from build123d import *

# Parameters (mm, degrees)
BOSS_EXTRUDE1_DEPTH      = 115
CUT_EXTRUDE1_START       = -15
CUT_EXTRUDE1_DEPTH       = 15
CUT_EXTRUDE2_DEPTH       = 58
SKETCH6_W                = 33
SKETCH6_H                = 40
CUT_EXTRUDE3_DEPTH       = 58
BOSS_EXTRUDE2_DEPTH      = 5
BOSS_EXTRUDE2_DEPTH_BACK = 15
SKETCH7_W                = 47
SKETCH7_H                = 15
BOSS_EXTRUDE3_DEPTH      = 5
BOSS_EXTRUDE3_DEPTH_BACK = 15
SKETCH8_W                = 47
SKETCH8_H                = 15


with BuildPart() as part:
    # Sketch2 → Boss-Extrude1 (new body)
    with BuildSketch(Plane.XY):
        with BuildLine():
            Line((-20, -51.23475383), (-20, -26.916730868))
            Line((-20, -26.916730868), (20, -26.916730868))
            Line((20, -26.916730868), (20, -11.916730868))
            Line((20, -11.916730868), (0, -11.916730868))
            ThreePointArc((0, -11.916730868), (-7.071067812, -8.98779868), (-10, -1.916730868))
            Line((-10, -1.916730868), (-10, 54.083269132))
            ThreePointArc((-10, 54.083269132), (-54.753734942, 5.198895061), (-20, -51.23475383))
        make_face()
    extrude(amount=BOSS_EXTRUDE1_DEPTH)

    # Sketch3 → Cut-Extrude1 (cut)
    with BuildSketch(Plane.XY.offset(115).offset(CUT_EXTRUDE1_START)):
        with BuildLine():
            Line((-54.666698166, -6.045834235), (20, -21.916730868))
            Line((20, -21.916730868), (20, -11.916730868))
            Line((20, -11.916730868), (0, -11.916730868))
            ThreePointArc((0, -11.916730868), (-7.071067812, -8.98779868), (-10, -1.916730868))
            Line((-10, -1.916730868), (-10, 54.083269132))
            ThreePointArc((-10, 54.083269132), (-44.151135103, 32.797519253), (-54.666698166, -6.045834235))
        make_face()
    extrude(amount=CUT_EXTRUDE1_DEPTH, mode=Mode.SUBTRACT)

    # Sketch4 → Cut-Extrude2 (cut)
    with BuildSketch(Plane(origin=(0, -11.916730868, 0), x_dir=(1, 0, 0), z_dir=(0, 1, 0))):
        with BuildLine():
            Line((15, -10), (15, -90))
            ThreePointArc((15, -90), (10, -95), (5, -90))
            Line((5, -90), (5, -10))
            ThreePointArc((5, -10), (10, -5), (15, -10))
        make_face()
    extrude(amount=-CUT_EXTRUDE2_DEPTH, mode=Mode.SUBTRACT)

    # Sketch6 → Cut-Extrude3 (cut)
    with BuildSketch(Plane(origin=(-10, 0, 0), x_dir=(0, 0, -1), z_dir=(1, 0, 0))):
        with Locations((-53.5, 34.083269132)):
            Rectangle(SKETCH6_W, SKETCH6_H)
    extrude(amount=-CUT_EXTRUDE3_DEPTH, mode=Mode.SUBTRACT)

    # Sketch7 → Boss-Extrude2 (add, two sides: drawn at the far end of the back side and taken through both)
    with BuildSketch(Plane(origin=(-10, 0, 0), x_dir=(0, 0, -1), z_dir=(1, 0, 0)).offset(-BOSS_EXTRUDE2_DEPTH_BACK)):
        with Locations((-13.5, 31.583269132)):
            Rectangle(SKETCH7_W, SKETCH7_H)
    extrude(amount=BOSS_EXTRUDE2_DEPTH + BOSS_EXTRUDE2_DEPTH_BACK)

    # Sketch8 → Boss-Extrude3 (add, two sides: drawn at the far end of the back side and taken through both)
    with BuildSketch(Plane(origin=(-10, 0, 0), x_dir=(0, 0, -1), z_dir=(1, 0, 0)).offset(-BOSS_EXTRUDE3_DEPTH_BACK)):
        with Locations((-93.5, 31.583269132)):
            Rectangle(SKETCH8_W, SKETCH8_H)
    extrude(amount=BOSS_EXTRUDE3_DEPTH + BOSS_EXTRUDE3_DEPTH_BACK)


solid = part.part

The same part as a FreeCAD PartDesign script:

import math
import FreeCAD as App
import Part
import Sketcher
Q = App.Units.Quantity

doc = App.newDocument("Part")
body = doc.addObject("PartDesign::Body", "Body")

# Sketch on XY plane
sketch1 = body.newObject("Sketcher::SketchObject", "Sketch")
sketch1.AttachmentSupport = (doc.getObject("XY_Plane"), [""])
sketch1.MapMode = "FlatFace"
sketch1.addGeometry(Part.LineSegment(App.Vector(-20, -51, 0), App.Vector(-20, -27, 0)), False)
sketch1.addGeometry(Part.LineSegment(App.Vector(-20, -27, 0), App.Vector(20, -27, 0)), False)
sketch1.addGeometry(Part.LineSegment(App.Vector(20, -27, 0), App.Vector(20, -12, 0)), False)
sketch1.addGeometry(Part.LineSegment(App.Vector(20, -12, 0), App.Vector(0, -12, 0)), False)
sketch1.addGeometry(Part.ArcOfCircle(Part.Circle(App.Vector(0, -2, 0), App.Vector(0, 0, 1), 10), math.radians(180), math.radians(270)), False)
sketch1.addGeometry(Part.LineSegment(App.Vector(-10, -2, 0), App.Vector(-10, 54, 0)), False)
sketch1.addGeometry(Part.ArcOfCircle(Part.Circle(App.Vector(0, 0, 0), App.Vector(0, 0, 1), 55), math.radians(100), math.radians(249)), False)
sketch1.addConstraint(Sketcher.Constraint("Coincident", 0, 2, 1, 1))
sketch1.addConstraint(Sketcher.Constraint("Coincident", 1, 2, 2, 1))
sketch1.addConstraint(Sketcher.Constraint("Coincident", 2, 2, 3, 1))
sketch1.addConstraint(Sketcher.Constraint("Tangent", 3, 2, 4, 2))
sketch1.addConstraint(Sketcher.Constraint("Tangent", 4, 1, 5, 1))
sketch1.addConstraint(Sketcher.Constraint("Coincident", 5, 2, 6, 1))
sketch1.addConstraint(Sketcher.Constraint("Coincident", 6, 2, 0, 1))
sketch1.addConstraint(Sketcher.Constraint("Vertical", 0))
sketch1.addConstraint(Sketcher.Constraint("Horizontal", 1))
sketch1.addConstraint(Sketcher.Constraint("Vertical", 2))
sketch1.addConstraint(Sketcher.Constraint("Horizontal", 3))
sketch1.addConstraint(Sketcher.Constraint("Vertical", 5))
sketch1.addConstraint(Sketcher.Constraint("Coincident", 6, 3, -1, 1))
sketch1.addConstraint(Sketcher.Constraint("PointOnObject", 4, 3, -2))
sketch1.addConstraint(Sketcher.Constraint("Radius", 4, 10.0))
sketch1.addConstraint(Sketcher.Constraint("Radius", 6, 55.0))
sketch1.addConstraint(Sketcher.Constraint("DistanceX", 1, 1, 1, 2, 40.0))
sketch1.addConstraint(Sketcher.Constraint("DistanceX", 3, 2, 3, 1, 20.0))
sketch1.addConstraint(Sketcher.Constraint("DistanceY", 2, 1, 2, 2, 15.0))
sketch1.addConstraint(Sketcher.Constraint("DistanceY", 5, 1, 5, 2, 56.0))
pad1 = body.newObject("PartDesign::Pad", "Pad")
pad1.Profile = sketch1
pad1.Length = 115

# Sketch on XY plane
sketch2 = body.newObject("Sketcher::SketchObject", "Sketch001")
sketch2.AttachmentSupport = (doc.getObject("XY_Plane"), [""])
sketch2.MapMode = "FlatFace"
sketch2.AttachmentOffset = App.Placement(App.Vector(0, 0, 100), App.Rotation())
sketch2.addGeometry(Part.LineSegment(App.Vector(-55, -6, 0), App.Vector(20, -22, 0)), False)
sketch2.addGeometry(Part.LineSegment(App.Vector(20, -22, 0), App.Vector(20, -12, 0)), False)
sketch2.addGeometry(Part.LineSegment(App.Vector(20, -12, 0), App.Vector(0, -12, 0)), False)
sketch2.addGeometry(Part.ArcOfCircle(Part.Circle(App.Vector(0, -2, 0), App.Vector(0, 0, 1), 10), math.radians(180), math.radians(270)), False)
sketch2.addGeometry(Part.LineSegment(App.Vector(-10, -2, 0), App.Vector(-10, 54, 0)), False)
sketch2.addGeometry(Part.ArcOfCircle(Part.Circle(App.Vector(0, 0, 0), App.Vector(0, 0, 1), 55), math.radians(100), math.radians(186)), False)
sketch2.addConstraint(Sketcher.Constraint("Coincident", 0, 2, 1, 1))
sketch2.addConstraint(Sketcher.Constraint("Coincident", 1, 2, 2, 1))
sketch2.addConstraint(Sketcher.Constraint("Tangent", 2, 2, 3, 2))
sketch2.addConstraint(Sketcher.Constraint("Tangent", 3, 1, 4, 1))
sketch2.addConstraint(Sketcher.Constraint("Coincident", 4, 2, 5, 1))
sketch2.addConstraint(Sketcher.Constraint("Coincident", 5, 2, 0, 1))
sketch2.addConstraint(Sketcher.Constraint("Vertical", 1))
sketch2.addConstraint(Sketcher.Constraint("Horizontal", 2))
sketch2.addConstraint(Sketcher.Constraint("Vertical", 4))
sketch2.addConstraint(Sketcher.Constraint("Coincident", 5, 3, -1, 1))
sketch2.addConstraint(Sketcher.Constraint("PointOnObject", 3, 3, -2))
sketch2.addConstraint(Sketcher.Constraint("Radius", 3, 10.0))
sketch2.addConstraint(Sketcher.Constraint("Radius", 5, 55.0))
sketch2.addConstraint(Sketcher.Constraint("DistanceX", 2, 2, 2, 1, 20.0))
sketch2.addConstraint(Sketcher.Constraint("DistanceY", 1, 1, 1, 2, 10.0))
sketch2.addConstraint(Sketcher.Constraint("DistanceY", 4, 1, 4, 2, 56.0))
sketch2.addConstraint(Sketcher.Constraint("Angle", 0, Q("-12 deg")))
pocket1 = body.newObject("PartDesign::Pocket", "Pocket")
pocket1.Profile = sketch2
pocket1.Length = 15
pocket1.Reversed = True

# Sketch on XZ plane
sketch3 = body.newObject("Sketcher::SketchObject", "Sketch002")
sketch3.AttachmentSupport = (doc.getObject("XZ_Plane"), [""])
sketch3.MapMode = "FlatFace"
sketch3.AttachmentOffset = App.Placement(App.Vector(0, 0, 11.916731), App.Rotation())
sketch3.addGeometry(Part.LineSegment(App.Vector(15, 90, 0), App.Vector(15, 10, 0)), False)
sketch3.addGeometry(Part.ArcOfCircle(Part.Circle(App.Vector(10, 10, 0), App.Vector(0, 0, 1), 5), math.radians(180), math.radians(360)), False)
sketch3.addGeometry(Part.LineSegment(App.Vector(5, 10, 0), App.Vector(5, 90, 0)), False)
sketch3.addGeometry(Part.ArcOfCircle(Part.Circle(App.Vector(10, 90, 0), App.Vector(0, 0, 1), 5), math.radians(0), math.radians(180)), False)
sketch3.addConstraint(Sketcher.Constraint("Tangent", 0, 2, 1, 2))
sketch3.addConstraint(Sketcher.Constraint("Tangent", 1, 1, 2, 1))
sketch3.addConstraint(Sketcher.Constraint("Tangent", 2, 2, 3, 2))
sketch3.addConstraint(Sketcher.Constraint("Tangent", 3, 1, 0, 1))
sketch3.addConstraint(Sketcher.Constraint("Vertical", 0))
sketch3.addConstraint(Sketcher.Constraint("Vertical", 2))
sketch3.addConstraint(Sketcher.Constraint("Radius", 1, 5.0))
sketch3.addConstraint(Sketcher.Constraint("DistanceY", 0, 2, 0, 1, 80.0))
sketch3.addConstraint(Sketcher.Constraint("DistanceX", -1, 1, 1, 3, 10.0))
sketch3.addConstraint(Sketcher.Constraint("DistanceY", -1, 1, 1, 3, 10.0))
pocket2 = body.newObject("PartDesign::Pocket", "Pocket001")
pocket2.Profile = sketch3
pocket2.Length = 58
pocket2.Reversed = True

# Sketch on YZ plane
sketch4 = body.newObject("Sketcher::SketchObject", "Sketch003")
sketch4.AttachmentSupport = (doc.getObject("YZ_Plane"), [""])
sketch4.MapMode = "FlatFace"
sketch4.AttachmentOffset = App.Placement(App.Vector(0, 0, -10), App.Rotation())
sketch4.addGeometry(Part.LineSegment(App.Vector(54, 70, 0), App.Vector(14, 70, 0)), False)
sketch4.addGeometry(Part.LineSegment(App.Vector(14, 70, 0), App.Vector(14, 37, 0)), False)
sketch4.addGeometry(Part.LineSegment(App.Vector(14, 37, 0), App.Vector(54, 37, 0)), False)
sketch4.addGeometry(Part.LineSegment(App.Vector(54, 37, 0), App.Vector(54, 70, 0)), False)
sketch4.addConstraint(Sketcher.Constraint("Coincident", 0, 2, 1, 1))
sketch4.addConstraint(Sketcher.Constraint("Coincident", 1, 2, 2, 1))
sketch4.addConstraint(Sketcher.Constraint("Coincident", 2, 2, 3, 1))
sketch4.addConstraint(Sketcher.Constraint("Coincident", 3, 2, 0, 1))
sketch4.addConstraint(Sketcher.Constraint("Horizontal", 0))
sketch4.addConstraint(Sketcher.Constraint("Vertical", 1))
sketch4.addConstraint(Sketcher.Constraint("Horizontal", 2))
sketch4.addConstraint(Sketcher.Constraint("Vertical", 3))
sketch4.addConstraint(Sketcher.Constraint("DistanceX", 0, 2, 0, 1, 40.0))
sketch4.addConstraint(Sketcher.Constraint("DistanceY", 1, 2, 1, 1, 33.0))
sketch4.addConstraint(Sketcher.Constraint("DistanceY", -1, 1, 0, 2, 70.0))
sketch4.addConstraint(Sketcher.Constraint("DistanceX", -1, 1, 0, 2, 14.083269))
pocket3 = body.newObject("PartDesign::Pocket", "Pocket002")
pocket3.Profile = sketch4
pocket3.Length = 58

# Sketch on YZ plane
sketch5 = body.newObject("Sketcher::SketchObject", "Sketch004")
sketch5.AttachmentSupport = (doc.getObject("YZ_Plane"), [""])
sketch5.MapMode = "FlatFace"
sketch5.AttachmentOffset = App.Placement(App.Vector(0, 0, -10), App.Rotation())
sketch5.addGeometry(Part.LineSegment(App.Vector(39, 37, 0), App.Vector(24, 37, 0)), False)
sketch5.addGeometry(Part.LineSegment(App.Vector(24, 37, 0), App.Vector(24, -10, 0)), False)
sketch5.addGeometry(Part.LineSegment(App.Vector(24, -10, 0), App.Vector(39, -10, 0)), False)
sketch5.addGeometry(Part.LineSegment(App.Vector(39, -10, 0), App.Vector(39, 37, 0)), False)
sketch5.addConstraint(Sketcher.Constraint("Coincident", 0, 2, 1, 1))
sketch5.addConstraint(Sketcher.Constraint("Coincident", 1, 2, 2, 1))
sketch5.addConstraint(Sketcher.Constraint("Coincident", 2, 2, 3, 1))
sketch5.addConstraint(Sketcher.Constraint("Coincident", 3, 2, 0, 1))
sketch5.addConstraint(Sketcher.Constraint("Horizontal", 0))
sketch5.addConstraint(Sketcher.Constraint("Vertical", 1))
sketch5.addConstraint(Sketcher.Constraint("Horizontal", 2))
sketch5.addConstraint(Sketcher.Constraint("Vertical", 3))
sketch5.addConstraint(Sketcher.Constraint("DistanceX", 0, 2, 0, 1, 15.0))
sketch5.addConstraint(Sketcher.Constraint("DistanceY", 1, 2, 1, 1, 47.0))
sketch5.addConstraint(Sketcher.Constraint("DistanceY", -1, 1, 0, 2, 37.0))
sketch5.addConstraint(Sketcher.Constraint("DistanceX", -1, 1, 0, 2, 24.083269))
pad2 = body.newObject("PartDesign::Pad", "Pad001")
pad2.Profile = sketch5
pad2.Type = "TwoLengths"
pad2.Length = 5
pad2.Length2 = 15

# Sketch on YZ plane
sketch6 = body.newObject("Sketcher::SketchObject", "Sketch005")
sketch6.AttachmentSupport = (doc.getObject("YZ_Plane"), [""])
sketch6.MapMode = "FlatFace"
sketch6.AttachmentOffset = App.Placement(App.Vector(0, 0, -10), App.Rotation())
sketch6.addGeometry(Part.LineSegment(App.Vector(39, 117, 0), App.Vector(24, 117, 0)), False)
sketch6.addGeometry(Part.LineSegment(App.Vector(24, 117, 0), App.Vector(24, 70, 0)), False)
sketch6.addGeometry(Part.LineSegment(App.Vector(24, 70, 0), App.Vector(39, 70, 0)), False)
sketch6.addGeometry(Part.LineSegment(App.Vector(39, 70, 0), App.Vector(39, 117, 0)), False)
sketch6.addConstraint(Sketcher.Constraint("Coincident", 0, 2, 1, 1))
sketch6.addConstraint(Sketcher.Constraint("Coincident", 1, 2, 2, 1))
sketch6.addConstraint(Sketcher.Constraint("Coincident", 2, 2, 3, 1))
sketch6.addConstraint(Sketcher.Constraint("Coincident", 3, 2, 0, 1))
sketch6.addConstraint(Sketcher.Constraint("Horizontal", 0))
sketch6.addConstraint(Sketcher.Constraint("Vertical", 1))
sketch6.addConstraint(Sketcher.Constraint("Horizontal", 2))
sketch6.addConstraint(Sketcher.Constraint("Vertical", 3))
sketch6.addConstraint(Sketcher.Constraint("DistanceX", 0, 2, 0, 1, 15.0))
sketch6.addConstraint(Sketcher.Constraint("DistanceY", 1, 2, 1, 1, 47.0))
sketch6.addConstraint(Sketcher.Constraint("DistanceY", -1, 1, 0, 2, 117.0))
sketch6.addConstraint(Sketcher.Constraint("DistanceX", -1, 1, 0, 2, 24.083269))
pad3 = body.newObject("PartDesign::Pad", "Pad002")
pad3.Profile = sketch6
pad3.Type = "TwoLengths"
pad3.Length = 5
pad3.Length2 = 15

doc.recompute()
